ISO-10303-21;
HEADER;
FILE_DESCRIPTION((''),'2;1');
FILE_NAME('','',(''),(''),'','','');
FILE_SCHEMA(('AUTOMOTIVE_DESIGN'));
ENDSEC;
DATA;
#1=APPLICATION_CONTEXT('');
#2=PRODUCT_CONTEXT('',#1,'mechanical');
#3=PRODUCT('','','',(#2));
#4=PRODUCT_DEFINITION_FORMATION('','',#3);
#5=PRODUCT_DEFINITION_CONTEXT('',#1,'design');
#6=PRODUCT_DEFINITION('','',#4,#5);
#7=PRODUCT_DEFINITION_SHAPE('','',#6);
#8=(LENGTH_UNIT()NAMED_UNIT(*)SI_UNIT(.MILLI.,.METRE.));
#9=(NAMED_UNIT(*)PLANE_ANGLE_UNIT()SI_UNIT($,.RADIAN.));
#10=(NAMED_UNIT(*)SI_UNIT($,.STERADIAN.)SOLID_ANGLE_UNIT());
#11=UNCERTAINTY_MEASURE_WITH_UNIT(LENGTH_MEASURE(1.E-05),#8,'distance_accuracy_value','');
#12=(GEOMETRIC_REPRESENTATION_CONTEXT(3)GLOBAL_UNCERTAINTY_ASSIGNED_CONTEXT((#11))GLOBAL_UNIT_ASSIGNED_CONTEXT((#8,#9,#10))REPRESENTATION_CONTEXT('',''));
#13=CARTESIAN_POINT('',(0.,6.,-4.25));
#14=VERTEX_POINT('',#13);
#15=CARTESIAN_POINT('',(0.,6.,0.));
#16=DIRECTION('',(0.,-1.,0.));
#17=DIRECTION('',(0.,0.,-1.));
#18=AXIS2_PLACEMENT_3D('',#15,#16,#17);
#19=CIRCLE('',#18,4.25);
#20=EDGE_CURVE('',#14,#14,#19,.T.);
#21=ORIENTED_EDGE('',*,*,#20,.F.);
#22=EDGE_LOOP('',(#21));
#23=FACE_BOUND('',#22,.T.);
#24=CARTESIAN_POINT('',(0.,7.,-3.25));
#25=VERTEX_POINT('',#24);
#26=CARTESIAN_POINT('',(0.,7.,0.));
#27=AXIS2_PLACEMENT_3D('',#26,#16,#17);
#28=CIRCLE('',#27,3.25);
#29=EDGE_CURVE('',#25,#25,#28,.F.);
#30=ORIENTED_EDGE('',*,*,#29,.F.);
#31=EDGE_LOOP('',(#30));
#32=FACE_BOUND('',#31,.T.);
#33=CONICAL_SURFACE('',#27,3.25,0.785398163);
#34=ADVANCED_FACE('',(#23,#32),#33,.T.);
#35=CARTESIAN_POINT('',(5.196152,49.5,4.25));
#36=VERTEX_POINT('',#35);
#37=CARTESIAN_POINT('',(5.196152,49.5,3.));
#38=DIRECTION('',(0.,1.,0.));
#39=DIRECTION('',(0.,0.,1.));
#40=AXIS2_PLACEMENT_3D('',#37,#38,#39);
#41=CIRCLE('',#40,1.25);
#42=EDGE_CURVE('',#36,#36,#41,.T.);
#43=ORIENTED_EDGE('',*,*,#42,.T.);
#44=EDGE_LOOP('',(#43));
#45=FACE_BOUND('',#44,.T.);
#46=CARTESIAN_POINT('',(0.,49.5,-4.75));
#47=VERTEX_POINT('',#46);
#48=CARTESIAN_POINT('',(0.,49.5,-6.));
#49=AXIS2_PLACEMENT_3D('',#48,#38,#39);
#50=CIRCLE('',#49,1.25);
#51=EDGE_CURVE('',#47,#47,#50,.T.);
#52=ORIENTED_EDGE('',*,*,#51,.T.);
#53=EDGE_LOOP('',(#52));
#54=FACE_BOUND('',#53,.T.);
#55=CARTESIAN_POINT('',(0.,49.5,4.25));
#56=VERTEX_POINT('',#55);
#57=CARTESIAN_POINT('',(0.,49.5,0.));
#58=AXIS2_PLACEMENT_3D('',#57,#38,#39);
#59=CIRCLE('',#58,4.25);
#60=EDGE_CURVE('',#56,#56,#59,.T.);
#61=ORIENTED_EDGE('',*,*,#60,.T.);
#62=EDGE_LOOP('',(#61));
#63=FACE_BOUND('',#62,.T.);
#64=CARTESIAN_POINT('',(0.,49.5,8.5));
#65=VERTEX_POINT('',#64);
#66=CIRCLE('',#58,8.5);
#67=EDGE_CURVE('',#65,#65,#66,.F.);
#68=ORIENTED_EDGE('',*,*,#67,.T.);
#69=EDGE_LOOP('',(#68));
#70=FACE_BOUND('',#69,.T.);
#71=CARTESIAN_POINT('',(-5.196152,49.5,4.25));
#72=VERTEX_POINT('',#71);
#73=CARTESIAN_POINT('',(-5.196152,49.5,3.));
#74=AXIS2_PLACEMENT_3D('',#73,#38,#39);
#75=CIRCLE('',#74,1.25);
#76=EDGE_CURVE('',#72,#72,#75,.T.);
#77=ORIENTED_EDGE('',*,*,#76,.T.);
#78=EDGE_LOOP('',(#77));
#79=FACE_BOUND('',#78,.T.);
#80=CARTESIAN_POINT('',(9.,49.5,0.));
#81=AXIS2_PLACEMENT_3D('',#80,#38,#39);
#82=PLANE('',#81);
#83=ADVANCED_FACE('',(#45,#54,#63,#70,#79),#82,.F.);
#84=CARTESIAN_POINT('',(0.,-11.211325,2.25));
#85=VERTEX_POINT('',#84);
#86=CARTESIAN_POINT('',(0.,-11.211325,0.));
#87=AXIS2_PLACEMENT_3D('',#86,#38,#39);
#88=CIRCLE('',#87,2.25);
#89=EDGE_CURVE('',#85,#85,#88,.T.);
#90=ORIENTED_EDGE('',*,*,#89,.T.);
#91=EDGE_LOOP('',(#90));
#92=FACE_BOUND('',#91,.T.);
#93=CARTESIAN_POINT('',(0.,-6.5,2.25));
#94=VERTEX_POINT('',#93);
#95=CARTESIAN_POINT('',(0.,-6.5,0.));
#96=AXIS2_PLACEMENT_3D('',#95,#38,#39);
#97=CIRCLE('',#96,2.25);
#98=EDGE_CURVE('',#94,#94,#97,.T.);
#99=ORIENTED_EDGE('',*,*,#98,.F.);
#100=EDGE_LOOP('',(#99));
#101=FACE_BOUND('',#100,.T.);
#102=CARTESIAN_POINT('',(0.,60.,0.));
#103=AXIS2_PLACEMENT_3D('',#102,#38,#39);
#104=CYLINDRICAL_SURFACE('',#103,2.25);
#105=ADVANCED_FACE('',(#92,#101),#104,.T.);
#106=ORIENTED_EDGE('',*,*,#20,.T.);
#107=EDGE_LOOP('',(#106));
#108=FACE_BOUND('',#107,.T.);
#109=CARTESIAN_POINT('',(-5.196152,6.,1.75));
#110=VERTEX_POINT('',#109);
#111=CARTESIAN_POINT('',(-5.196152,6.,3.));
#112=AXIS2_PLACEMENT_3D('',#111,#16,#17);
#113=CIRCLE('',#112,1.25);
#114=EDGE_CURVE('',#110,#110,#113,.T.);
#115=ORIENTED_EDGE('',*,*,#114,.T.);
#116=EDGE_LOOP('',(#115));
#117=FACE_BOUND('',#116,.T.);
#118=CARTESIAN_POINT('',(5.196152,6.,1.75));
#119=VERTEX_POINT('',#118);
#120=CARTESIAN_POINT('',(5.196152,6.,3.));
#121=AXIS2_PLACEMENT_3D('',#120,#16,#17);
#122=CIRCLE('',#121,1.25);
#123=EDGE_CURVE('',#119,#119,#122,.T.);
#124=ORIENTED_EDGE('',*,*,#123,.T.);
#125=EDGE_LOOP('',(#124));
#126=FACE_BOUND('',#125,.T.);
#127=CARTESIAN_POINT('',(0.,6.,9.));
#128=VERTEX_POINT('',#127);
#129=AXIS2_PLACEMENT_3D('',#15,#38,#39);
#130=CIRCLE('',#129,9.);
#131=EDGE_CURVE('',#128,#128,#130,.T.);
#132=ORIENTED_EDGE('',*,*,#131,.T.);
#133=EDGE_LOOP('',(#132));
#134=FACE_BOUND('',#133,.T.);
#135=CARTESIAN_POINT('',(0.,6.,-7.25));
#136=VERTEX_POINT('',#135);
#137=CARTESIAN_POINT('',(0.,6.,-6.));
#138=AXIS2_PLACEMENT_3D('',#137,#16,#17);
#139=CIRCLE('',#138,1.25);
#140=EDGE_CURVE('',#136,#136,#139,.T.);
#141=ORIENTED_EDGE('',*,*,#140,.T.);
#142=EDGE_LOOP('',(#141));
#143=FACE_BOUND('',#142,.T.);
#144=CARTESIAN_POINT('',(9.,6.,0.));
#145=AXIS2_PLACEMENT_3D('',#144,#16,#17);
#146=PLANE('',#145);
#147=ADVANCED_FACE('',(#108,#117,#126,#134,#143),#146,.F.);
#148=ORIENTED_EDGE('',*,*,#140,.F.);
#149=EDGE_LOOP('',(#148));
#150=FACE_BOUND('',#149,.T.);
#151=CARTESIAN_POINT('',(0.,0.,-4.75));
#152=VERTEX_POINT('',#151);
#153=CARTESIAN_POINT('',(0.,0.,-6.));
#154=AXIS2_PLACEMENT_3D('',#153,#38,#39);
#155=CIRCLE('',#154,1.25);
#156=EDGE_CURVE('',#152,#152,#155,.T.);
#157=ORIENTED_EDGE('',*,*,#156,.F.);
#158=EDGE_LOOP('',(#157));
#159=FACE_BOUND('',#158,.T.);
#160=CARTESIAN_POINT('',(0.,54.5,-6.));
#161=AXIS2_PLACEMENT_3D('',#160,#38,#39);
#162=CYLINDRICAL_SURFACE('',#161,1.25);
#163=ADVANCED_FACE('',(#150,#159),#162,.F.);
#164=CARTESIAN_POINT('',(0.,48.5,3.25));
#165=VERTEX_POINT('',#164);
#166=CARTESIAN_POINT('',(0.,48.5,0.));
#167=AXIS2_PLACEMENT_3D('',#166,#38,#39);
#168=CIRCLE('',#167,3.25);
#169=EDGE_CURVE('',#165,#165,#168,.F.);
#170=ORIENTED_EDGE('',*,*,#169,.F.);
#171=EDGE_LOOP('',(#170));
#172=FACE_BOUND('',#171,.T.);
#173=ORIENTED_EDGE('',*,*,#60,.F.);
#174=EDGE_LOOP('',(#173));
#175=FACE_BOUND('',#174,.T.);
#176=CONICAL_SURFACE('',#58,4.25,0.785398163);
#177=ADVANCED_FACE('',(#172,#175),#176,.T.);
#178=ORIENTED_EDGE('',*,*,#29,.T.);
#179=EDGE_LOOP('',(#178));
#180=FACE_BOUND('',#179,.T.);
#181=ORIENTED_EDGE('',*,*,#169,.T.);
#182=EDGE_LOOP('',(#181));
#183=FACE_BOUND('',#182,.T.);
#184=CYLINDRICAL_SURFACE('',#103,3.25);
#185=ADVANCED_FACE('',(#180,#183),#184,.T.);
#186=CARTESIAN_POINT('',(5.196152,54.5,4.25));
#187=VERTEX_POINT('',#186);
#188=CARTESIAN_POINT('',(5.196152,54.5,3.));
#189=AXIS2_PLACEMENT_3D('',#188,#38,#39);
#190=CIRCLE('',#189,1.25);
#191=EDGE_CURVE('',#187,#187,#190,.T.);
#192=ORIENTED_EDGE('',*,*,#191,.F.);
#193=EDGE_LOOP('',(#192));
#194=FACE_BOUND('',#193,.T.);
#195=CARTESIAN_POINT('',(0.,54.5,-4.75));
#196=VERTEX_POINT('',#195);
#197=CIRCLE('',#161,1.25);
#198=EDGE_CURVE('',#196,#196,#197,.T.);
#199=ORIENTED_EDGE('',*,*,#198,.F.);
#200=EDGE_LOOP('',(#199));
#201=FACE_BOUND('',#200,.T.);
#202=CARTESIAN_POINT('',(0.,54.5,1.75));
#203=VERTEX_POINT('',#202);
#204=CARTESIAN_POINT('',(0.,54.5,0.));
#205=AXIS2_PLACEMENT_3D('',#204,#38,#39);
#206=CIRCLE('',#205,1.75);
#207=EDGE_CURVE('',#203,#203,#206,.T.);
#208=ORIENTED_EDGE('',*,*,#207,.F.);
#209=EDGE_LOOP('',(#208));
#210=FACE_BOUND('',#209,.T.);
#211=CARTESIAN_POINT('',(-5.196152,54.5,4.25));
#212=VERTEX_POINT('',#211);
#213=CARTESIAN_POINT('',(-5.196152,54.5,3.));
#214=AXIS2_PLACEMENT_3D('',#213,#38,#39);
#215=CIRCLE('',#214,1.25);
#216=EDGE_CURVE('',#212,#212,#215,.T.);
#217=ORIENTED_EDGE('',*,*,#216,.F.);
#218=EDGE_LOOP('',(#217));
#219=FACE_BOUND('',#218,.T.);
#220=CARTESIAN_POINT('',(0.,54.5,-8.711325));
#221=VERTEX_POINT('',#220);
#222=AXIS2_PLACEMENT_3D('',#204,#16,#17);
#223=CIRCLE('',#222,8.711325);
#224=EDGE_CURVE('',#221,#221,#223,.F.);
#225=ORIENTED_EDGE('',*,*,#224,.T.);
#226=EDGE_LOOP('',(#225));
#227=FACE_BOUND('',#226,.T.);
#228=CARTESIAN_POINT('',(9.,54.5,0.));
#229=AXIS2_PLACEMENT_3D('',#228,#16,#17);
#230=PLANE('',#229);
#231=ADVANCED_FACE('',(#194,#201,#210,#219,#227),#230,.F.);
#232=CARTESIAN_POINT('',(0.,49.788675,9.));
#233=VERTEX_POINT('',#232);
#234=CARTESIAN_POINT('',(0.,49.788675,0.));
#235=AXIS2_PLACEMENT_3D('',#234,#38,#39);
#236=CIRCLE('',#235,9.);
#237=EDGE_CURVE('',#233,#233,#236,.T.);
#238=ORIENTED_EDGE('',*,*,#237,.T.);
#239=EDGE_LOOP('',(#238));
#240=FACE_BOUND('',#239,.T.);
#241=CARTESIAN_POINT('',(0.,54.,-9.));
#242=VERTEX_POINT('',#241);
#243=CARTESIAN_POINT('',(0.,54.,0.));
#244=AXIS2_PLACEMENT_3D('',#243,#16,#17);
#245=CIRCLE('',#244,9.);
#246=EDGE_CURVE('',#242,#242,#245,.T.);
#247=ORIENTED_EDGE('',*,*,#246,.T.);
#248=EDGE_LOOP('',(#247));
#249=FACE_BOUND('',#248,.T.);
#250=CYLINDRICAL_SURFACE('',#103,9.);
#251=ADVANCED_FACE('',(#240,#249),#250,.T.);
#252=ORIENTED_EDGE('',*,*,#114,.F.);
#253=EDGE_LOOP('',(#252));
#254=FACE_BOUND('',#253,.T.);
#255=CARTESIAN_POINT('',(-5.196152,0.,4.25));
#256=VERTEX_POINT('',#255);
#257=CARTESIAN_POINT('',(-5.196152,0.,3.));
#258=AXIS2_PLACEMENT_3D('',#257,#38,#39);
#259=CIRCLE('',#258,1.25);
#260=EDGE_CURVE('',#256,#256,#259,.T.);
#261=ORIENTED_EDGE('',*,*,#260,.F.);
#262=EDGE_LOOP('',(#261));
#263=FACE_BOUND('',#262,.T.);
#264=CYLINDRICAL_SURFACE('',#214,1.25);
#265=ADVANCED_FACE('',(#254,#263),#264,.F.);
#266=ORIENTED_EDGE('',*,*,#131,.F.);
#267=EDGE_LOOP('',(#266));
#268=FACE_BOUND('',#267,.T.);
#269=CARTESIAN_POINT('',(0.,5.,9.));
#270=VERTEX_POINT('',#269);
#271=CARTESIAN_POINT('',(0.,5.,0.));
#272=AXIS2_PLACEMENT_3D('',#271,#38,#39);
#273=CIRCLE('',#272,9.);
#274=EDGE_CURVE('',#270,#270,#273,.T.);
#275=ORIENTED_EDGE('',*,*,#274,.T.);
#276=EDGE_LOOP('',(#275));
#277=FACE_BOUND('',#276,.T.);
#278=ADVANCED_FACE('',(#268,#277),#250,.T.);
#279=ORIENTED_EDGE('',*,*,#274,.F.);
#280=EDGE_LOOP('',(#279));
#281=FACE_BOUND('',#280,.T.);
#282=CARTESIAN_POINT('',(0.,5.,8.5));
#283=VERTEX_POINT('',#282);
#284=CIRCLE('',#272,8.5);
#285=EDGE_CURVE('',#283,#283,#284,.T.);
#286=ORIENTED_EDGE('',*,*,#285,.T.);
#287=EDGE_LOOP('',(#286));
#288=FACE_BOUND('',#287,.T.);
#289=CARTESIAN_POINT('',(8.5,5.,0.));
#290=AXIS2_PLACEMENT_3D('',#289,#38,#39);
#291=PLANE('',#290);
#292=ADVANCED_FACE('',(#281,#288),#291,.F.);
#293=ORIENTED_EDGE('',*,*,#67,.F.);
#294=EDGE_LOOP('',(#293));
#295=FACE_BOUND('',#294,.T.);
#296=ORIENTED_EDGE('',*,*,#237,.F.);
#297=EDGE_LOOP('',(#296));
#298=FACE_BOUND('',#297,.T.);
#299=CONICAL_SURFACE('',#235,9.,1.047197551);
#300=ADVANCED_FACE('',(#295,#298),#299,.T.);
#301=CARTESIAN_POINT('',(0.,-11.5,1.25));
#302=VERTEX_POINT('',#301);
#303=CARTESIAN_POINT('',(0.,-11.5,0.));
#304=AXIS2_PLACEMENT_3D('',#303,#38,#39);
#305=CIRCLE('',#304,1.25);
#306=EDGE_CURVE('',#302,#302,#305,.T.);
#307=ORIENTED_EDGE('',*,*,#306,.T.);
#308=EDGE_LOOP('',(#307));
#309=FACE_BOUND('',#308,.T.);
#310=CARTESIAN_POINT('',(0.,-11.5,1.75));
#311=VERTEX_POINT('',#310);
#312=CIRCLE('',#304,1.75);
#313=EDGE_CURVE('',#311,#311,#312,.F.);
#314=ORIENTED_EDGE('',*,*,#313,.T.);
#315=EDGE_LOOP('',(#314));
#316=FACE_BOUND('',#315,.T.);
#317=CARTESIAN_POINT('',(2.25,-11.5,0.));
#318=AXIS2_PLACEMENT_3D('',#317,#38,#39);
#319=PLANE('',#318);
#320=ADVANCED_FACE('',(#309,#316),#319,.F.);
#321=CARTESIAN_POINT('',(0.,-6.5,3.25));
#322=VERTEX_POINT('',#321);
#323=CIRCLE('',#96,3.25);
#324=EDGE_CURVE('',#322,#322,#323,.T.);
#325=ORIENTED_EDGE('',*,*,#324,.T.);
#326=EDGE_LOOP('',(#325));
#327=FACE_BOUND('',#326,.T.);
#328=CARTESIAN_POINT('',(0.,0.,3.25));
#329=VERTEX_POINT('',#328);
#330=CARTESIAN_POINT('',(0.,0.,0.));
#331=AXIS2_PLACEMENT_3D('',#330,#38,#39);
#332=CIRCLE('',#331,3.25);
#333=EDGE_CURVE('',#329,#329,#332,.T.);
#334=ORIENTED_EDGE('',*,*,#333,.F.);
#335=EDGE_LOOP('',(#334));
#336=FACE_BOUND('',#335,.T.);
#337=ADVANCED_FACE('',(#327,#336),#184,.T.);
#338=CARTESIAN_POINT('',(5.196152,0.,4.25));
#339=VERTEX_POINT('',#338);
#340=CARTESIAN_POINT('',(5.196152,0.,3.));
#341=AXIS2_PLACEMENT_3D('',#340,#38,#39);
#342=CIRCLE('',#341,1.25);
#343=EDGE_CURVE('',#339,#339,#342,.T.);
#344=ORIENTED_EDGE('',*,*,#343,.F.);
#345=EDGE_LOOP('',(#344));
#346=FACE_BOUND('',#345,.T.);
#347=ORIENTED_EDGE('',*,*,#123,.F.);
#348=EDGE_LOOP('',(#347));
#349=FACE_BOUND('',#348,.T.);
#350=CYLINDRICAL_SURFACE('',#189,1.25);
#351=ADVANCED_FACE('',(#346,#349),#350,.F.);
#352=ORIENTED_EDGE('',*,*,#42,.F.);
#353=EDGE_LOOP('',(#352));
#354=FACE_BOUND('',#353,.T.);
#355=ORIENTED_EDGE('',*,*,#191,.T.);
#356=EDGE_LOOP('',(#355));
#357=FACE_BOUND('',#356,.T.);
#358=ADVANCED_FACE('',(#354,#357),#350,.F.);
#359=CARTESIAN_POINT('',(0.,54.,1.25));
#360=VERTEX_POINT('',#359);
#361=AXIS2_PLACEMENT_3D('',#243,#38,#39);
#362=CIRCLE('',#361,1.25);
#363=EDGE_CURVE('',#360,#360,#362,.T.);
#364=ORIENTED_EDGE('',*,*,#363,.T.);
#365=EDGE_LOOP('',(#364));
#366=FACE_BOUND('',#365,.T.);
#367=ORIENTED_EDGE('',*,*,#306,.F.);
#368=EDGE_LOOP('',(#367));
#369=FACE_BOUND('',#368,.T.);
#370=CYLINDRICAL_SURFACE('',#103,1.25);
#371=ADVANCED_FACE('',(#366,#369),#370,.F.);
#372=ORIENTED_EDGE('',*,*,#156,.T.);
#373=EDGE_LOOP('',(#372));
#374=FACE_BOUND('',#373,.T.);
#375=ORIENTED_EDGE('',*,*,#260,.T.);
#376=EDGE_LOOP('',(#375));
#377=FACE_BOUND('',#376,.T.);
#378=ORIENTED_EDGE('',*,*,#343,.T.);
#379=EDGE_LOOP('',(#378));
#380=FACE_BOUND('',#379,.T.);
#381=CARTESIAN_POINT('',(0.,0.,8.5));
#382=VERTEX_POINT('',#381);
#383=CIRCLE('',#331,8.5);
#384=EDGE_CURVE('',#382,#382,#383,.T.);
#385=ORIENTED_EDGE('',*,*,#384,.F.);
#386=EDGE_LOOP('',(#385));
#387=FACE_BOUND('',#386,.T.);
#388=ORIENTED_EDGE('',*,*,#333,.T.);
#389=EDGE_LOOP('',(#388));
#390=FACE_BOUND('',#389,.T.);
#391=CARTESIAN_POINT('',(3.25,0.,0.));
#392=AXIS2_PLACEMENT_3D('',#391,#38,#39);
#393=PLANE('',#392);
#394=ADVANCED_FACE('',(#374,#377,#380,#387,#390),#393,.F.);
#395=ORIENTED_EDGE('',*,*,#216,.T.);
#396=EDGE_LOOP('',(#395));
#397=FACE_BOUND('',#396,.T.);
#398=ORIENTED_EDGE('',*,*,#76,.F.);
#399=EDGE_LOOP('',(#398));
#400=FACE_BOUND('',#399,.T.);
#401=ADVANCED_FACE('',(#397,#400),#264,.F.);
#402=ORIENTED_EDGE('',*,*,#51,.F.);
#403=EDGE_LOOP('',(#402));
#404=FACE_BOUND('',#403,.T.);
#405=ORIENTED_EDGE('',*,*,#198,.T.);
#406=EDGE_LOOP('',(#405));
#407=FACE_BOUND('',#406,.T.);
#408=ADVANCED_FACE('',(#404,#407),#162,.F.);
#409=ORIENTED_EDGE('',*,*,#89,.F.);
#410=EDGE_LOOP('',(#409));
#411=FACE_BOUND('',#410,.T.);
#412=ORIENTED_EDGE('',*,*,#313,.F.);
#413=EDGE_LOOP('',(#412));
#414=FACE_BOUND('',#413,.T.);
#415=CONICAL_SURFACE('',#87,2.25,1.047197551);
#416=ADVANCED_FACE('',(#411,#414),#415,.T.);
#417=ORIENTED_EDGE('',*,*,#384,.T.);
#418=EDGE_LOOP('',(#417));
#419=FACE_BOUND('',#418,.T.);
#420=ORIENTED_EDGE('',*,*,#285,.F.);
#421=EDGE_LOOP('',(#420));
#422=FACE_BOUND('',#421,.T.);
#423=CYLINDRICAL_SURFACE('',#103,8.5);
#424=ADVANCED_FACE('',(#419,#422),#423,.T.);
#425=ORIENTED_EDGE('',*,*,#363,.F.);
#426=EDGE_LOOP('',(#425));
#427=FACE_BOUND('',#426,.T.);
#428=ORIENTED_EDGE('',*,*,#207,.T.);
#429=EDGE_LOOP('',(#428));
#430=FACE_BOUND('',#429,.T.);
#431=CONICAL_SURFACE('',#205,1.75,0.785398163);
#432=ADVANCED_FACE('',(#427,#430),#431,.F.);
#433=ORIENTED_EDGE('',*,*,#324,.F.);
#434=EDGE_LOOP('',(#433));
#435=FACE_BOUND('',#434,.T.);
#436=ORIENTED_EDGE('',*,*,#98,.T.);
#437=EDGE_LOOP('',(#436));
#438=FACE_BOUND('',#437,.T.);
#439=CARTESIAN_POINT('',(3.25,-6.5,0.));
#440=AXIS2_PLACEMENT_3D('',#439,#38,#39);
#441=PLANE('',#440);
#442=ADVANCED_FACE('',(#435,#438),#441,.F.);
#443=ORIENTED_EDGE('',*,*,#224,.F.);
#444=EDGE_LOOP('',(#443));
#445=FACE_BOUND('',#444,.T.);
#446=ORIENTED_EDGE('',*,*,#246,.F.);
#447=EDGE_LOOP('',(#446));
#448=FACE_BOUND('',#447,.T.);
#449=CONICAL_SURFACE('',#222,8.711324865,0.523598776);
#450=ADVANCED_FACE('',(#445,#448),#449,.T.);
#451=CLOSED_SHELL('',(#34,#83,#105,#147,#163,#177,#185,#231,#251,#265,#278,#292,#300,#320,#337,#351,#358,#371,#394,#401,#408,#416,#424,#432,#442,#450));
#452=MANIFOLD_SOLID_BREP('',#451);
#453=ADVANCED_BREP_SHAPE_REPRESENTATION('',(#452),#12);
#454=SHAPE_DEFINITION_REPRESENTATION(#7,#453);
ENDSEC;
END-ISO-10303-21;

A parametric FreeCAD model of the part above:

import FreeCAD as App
import Part
import Sketcher
from FreeCAD import Vector


def edges_at(feature, points):
    """Names of the edges that pass closest to the given points."""
    edges = feature.Shape.Edges
    near = lambda p: min(range(len(edges)), key=lambda i: edges[i].distToShape(Part.Vertex(*p))[0])
    return sorted({f"Edge{near(p) + 1}" for p in points})


def add_polygon(sketch, points):
    """Adds a closed chain of lines whose ends are joined by coincident constraints."""
    first, n = sketch.GeometryCount, len(points)
    for a, b in zip(points, points[1:] + points[:1]):
        sketch.addGeometry(Part.LineSegment(App.Vector(*a, 0), App.Vector(*b, 0)), False)
    for i in range(n):
        sketch.addConstraint(Sketcher.Constraint("Coincident", first + i, 2, first + (i + 1) % n, 1))

doc = App.newDocument("Part")
body = doc.addObject("PartDesign::Body", "Body")

# Sketch on XY plane
sketch1 = body.newObject("Sketcher::SketchObject", "Sketch")
sketch1.AttachmentSupport = (doc.getObject("XY_Plane"), [""])
sketch1.MapMode = "FlatFace"
add_polygon(sketch1, [(3.25, 0), (8.5, 0), (8.5, 5), (9, 5), (9, 6), (3.25, 6), (3.25, 49.5), (9, 49.5), (9, 54.5), (1.25, 54.5), (1.25, -11.5), (2.25, -11.5), (2.25, -6.5), (3.25, -6.5)])  # lines 0-13
sketch1.addConstraint([
    Sketcher.Constraint("Horizontal", 0),
    Sketcher.Constraint("Vertical", 1),
    Sketcher.Constraint("Horizontal", 2),
    Sketcher.Constraint("Vertical", 3),
    Sketcher.Constraint("Horizontal", 4),
    Sketcher.Constraint("Vertical", 5),
    Sketcher.Constraint("Horizontal", 6),
    Sketcher.Constraint("Vertical", 7),
    Sketcher.Constraint("Horizontal", 8),
    Sketcher.Constraint("Vertical", 9),
    Sketcher.Constraint("Horizontal", 10),
    Sketcher.Constraint("Vertical", 11),
    Sketcher.Constraint("Horizontal", 12),
    Sketcher.Constraint("Vertical", 13),
    Sketcher.Constraint("PointOnObject", 0, 2, -1),
    Sketcher.Constraint("Vertical", 3, 2, 6, 2),
    Sketcher.Constraint("Vertical", 5, 2, 12, 2),
    Sketcher.Constraint("Equal", 10, 12),
    Sketcher.Constraint("Equal", 12, 3),
    Sketcher.Constraint("Equal", 1, 7),
    Sketcher.Constraint("Equal", 7, 11),
    Sketcher.Constraint("DistanceX", 10, 1, 10, 2, 1.0),
    Sketcher.Constraint("DistanceY", 1, 1, 1, 2, 5.0),
    Sketcher.Constraint("DistanceY", 9, 2, 9, 1, 66.0),
    Sketcher.Constraint("DistanceX", 2, 1, 2, 2, 0.5),
    Sketcher.Constraint("DistanceY", 5, 1, 5, 2, 43.5),
    Sketcher.Constraint("DistanceX", -1, 1, 2, 2, 9.0),
    Sketcher.Constraint("DistanceX", 0, 1, 0, 2, 5.25),
])
revolution = body.newObject("PartDesign::Revolution", "Revolution")
revolution.Profile = sketch1
revolution.ReferenceAxis = (sketch1, ["V_Axis"])
revolution.Angle = 360

# Sketch on XZ plane
sketch2 = body.newObject("Sketcher::SketchObject", "Sketch001")
sketch2.AttachmentSupport = (doc.getObject("XZ_Plane"), [""])
sketch2.MapMode = "FlatFace"
sketch2.AttachmentOffset = App.Placement(Vector(0, 0, -54.5), App.Rotation())
sketch2.addGeometry([
    Part.Circle(Vector(-5.196152, 3, 0), Vector(0, 0, 1), 1.25),
    Part.Circle(Vector(0, -6, 0), Vector(0, 0, 1), 1.25),
    Part.Circle(Vector(5.196152, 3, 0), Vector(0, 0, 1), 1.25),
], False)
sketch2.addConstraint([
    Sketcher.Constraint("Equal", 0, 1),
    Sketcher.Constraint("Equal", 1, 2),
    Sketcher.Constraint("Symmetric", 0, 3, 2, 3, -2),
    Sketcher.Constraint("PointOnObject", 1, 3, -2),
    Sketcher.Constraint("Diameter", 0, 2.5),
    Sketcher.Constraint("DistanceY", -1, 1, 0, 3, 3.0),
    Sketcher.Constraint("DistanceY", 1, 3, -1, 1, 6.0),
    Sketcher.Constraint("DistanceX", 0, 3, -1, 1, 5.196152),
])
doc.recompute()
hole = body.newObject("PartDesign::Hole", "Hole")
hole.Profile = sketch2
hole.ThreadType = "None"
hole.Diameter = 2.5
hole.DepthType = "ThroughAll"
hole.Reversed = True
doc.recompute()

chamfer = body.newObject("PartDesign::Chamfer", "Chamfer")
chamfer.Base = (hole, edges_at(hole, [(-3.25, 6, 0), (-3.25, 49.5, 0)]))
chamfer.Size = 1
doc.recompute()

chamfer2 = body.newObject("PartDesign::Chamfer", "Chamfer001")
chamfer2.Base = (chamfer, edges_at(chamfer, [(-9, 49.5, 0)]))
chamfer2.ChamferType = "Two distances"
chamfer2.Size = 0.5
chamfer2.Size2 = 0.288675
doc.recompute()

chamfer3 = body.newObject("PartDesign::Chamfer", "Chamfer002")
chamfer3.Base = (chamfer2, edges_at(chamfer2, [(-9, 54.5, 0)]))
chamfer3.ChamferType = "Two distances"
chamfer3.Size = 0.5
chamfer3.Size2 = 0.288675
doc.recompute()

chamfer4 = body.newObject("PartDesign::Chamfer", "Chamfer003")
chamfer4.Base = (chamfer3, edges_at(chamfer3, [(-2.25, -11.5, 0)]))
chamfer4.ChamferType = "Two distances"
chamfer4.Size = 0.5
chamfer4.Size2 = 0.288675

# Sketch on XZ plane
sketch3 = body.newObject("Sketcher::SketchObject", "Sketch002")
sketch3.AttachmentSupport = (doc.getObject("XZ_Plane"), [""])
sketch3.MapMode = "FlatFace"
sketch3.AttachmentOffset = App.Placement(Vector(0, 0, -54.5), App.Rotation())
sketch3.addGeometry(Part.Circle(Vector(0, 0, 0), Vector(0, 0, 1), 1.25), False)
sketch3.addConstraint([
    Sketcher.Constraint("Coincident", 0, 3, -1, 1),
    Sketcher.Constraint("Diameter", 0, 2.5),
])
doc.recompute()
hole2 = body.newObject("PartDesign::Hole", "Hole001")
hole2.Profile = sketch3
hole2.ThreadType = "None"
hole2.Diameter = 2.5
hole2.DepthType = "Dimension"
hole2.Depth = 6
hole2.DrillPoint = "Angled"
hole2.DrillPointAngle = 118
hole2.HoleCutType = "Countersink"
hole2.HoleCutDiameter = 3.5
hole2.HoleCutCountersinkAngle = 90
hole2.Reversed = True

doc.recompute()
